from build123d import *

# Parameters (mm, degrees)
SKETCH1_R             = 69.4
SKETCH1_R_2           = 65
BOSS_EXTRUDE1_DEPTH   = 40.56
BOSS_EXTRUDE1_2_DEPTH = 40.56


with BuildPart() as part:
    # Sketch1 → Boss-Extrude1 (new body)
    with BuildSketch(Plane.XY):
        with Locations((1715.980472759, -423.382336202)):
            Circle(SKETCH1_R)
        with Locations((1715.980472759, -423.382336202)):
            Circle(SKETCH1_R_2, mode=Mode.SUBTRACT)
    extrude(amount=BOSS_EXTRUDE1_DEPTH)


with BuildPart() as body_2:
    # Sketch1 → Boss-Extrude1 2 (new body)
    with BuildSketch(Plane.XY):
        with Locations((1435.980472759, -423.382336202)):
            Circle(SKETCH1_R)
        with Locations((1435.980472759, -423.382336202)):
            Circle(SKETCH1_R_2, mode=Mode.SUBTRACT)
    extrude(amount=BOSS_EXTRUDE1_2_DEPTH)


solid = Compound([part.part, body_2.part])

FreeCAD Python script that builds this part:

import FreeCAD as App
import Part
import Sketcher

V = App.Vector

doc = App.newDocument("Part")
body = doc.addObject("PartDesign::Body", "Body")

sketch1 = body.newObject("Sketcher::SketchObject", "Sketch")
sketch1.AttachmentSupport = (doc.getObject("XY_Plane"), [""])
sketch1.MapMode = "FlatFace"
sketch1.addGeometry(Part.Circle(V(1716, -423, 0), V(0, 0, 1), 69), False)
sketch1.addGeometry(Part.Circle(V(1716, -423, 0), V(0, 0, 1), 65), False)
sketch1.addConstraint(Sketcher.Constraint("Coincident", 1, 3, 0, 3))
sketch1.addConstraint(Sketcher.Constraint("Diameter", 1, 130.0))
sketch1.addConstraint(Sketcher.Constraint("Diameter", 0, 138.8))
sketch1.addConstraint(Sketcher.Constraint("DistanceX", -1, 1, 0, 3, 1715.980473))
sketch1.addConstraint(Sketcher.Constraint("DistanceY", 0, 3, -1, 1, 423.382336))
pad1 = body.newObject("PartDesign::Pad", "Pad")
pad1.Profile = sketch1
pad1.Length = 40.56
body2 = doc.addObject("PartDesign::Body", "Body001")

sketch2 = body2.newObject("Sketcher::SketchObject", "Sketch001")
sketch2.AttachmentSupport = (doc.getObject("XY_Plane001"), [""])
sketch2.MapMode = "FlatFace"
sketch2.addGeometry(Part.Circle(V(1436, -423, 0), V(0, 0, 1), 69), False)
sketch2.addGeometry(Part.Circle(V(1436, -423, 0), V(0, 0, 1), 65), False)
sketch2.addConstraint(Sketcher.Constraint("Coincident", 1, 3, 0, 3))
sketch2.addConstraint(Sketcher.Constraint("Diameter", 1, 130.0))
sketch2.addConstraint(Sketcher.Constraint("Diameter", 0, 138.8))
sketch2.addConstraint(Sketcher.Constraint("DistanceX", -1, 1, 0, 3, 1435.980473))
sketch2.addConstraint(Sketcher.Constraint("DistanceY", 0, 3, -1, 1, 423.382336))
pad2 = body2.newObject("PartDesign::Pad", "Pad001")
pad2.Profile = sketch2
pad2.Length = 40.56

doc.recompute()
